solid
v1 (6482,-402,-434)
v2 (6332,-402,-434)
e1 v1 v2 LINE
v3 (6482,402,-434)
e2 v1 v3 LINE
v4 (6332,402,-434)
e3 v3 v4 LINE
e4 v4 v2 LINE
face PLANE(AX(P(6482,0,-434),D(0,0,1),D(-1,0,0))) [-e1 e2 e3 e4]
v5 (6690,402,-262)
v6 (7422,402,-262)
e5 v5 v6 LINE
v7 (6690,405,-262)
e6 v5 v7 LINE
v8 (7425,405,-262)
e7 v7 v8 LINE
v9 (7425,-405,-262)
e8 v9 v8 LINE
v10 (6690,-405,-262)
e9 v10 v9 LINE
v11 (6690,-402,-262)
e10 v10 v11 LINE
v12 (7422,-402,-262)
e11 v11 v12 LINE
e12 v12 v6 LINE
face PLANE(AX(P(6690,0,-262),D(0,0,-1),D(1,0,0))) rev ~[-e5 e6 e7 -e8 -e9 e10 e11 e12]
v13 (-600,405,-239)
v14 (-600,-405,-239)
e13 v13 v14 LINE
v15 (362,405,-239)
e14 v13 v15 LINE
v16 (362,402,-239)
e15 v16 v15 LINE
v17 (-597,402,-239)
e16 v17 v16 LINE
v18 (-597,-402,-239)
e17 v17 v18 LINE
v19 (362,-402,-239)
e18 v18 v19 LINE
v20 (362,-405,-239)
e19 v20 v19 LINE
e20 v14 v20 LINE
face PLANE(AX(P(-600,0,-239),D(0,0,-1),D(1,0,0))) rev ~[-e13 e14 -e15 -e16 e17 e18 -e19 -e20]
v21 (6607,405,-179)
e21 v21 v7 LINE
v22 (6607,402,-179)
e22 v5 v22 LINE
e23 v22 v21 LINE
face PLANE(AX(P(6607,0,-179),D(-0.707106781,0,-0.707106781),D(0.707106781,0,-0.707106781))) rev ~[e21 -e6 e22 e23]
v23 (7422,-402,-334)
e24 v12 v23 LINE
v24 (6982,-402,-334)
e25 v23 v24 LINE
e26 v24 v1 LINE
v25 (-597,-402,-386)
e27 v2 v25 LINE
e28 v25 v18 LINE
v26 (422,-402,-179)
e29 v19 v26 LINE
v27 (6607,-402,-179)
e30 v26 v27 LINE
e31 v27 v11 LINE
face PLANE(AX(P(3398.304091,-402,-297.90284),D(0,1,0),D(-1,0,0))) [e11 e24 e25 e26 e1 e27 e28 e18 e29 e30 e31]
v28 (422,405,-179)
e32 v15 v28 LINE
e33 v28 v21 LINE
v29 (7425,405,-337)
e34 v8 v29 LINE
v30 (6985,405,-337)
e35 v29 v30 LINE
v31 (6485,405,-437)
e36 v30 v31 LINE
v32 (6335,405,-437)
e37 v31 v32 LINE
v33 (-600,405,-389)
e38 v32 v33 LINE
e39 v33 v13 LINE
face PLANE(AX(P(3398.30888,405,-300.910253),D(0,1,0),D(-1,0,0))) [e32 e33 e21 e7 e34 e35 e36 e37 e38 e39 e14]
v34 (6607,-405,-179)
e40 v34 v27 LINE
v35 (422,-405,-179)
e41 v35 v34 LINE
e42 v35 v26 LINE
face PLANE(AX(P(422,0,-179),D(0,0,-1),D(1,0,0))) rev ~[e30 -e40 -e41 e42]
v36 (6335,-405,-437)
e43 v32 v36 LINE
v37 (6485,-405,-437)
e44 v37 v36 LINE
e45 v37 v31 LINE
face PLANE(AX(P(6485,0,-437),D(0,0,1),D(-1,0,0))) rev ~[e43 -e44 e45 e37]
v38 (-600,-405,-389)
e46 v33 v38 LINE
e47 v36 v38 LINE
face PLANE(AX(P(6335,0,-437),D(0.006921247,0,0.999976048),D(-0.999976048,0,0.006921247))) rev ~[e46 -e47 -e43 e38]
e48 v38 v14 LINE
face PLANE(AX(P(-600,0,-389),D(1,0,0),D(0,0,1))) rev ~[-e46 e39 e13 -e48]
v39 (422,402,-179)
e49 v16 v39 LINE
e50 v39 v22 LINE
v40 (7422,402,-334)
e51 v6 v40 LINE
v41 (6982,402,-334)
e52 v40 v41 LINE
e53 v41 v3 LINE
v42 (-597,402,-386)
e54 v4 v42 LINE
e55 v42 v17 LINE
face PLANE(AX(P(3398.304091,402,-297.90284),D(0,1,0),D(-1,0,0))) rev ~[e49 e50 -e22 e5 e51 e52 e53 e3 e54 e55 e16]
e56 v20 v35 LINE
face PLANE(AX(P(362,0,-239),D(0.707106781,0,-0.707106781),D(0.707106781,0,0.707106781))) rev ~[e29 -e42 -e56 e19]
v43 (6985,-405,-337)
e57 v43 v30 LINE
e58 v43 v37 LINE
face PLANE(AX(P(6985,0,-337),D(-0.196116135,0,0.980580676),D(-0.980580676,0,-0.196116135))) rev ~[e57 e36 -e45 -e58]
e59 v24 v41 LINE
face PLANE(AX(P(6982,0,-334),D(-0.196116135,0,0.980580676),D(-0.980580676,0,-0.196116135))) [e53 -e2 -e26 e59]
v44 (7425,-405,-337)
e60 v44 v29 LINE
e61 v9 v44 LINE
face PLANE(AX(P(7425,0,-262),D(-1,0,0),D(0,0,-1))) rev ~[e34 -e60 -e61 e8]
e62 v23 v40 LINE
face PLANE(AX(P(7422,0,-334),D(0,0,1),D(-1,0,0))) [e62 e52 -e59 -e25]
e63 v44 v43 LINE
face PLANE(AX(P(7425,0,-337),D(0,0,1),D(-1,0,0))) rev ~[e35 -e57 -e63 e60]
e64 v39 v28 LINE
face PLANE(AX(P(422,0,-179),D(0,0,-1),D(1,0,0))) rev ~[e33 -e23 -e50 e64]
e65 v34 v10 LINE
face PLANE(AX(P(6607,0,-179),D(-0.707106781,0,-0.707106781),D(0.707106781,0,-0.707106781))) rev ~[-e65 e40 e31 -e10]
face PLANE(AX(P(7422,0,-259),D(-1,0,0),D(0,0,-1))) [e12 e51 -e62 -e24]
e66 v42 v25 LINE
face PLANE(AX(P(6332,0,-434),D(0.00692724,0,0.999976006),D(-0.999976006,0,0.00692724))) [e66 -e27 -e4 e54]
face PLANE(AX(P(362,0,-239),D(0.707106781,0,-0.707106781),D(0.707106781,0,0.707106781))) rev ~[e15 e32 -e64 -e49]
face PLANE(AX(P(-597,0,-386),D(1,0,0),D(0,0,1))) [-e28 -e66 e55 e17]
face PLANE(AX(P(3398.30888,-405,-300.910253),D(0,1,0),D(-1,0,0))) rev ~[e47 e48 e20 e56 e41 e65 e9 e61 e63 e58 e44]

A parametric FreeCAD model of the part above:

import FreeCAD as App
import Part
import Sketcher

V = App.Vector
Q = App.Units.Quantity

doc = App.newDocument("Part")
body = doc.addObject("PartDesign::Body", "Body")

# Sketch on XZ plane
sketch1 = body.newObject("Sketcher::SketchObject", "Sketch")
sketch1.AttachmentSupport = (doc.getObject("XZ_Plane"), [""])
sketch1.MapMode = "FlatFace"
sketch1.addGeometry([
    Part.LineSegment(V(362, -239, 0), V(-597, -239, 0)),  # 0
    Part.LineSegment(V(-597, -239, 0), V(-597, -389, 0)),  # 1
    Part.LineSegment(V(-597, -389, 0), V(6332, -437, 0)),  # 2
    Part.LineSegment(V(6332, -437, 0), V(6482, -437, 0)),  # 3
    Part.LineSegment(V(6482, -437, 0), V(6982, -337, 0)),  # 4
    Part.LineSegment(V(6982, -337, 0), V(7422, -337, 0)),  # 5
    Part.LineSegment(V(7422, -337, 0), V(7422, -262, 0)),  # 6
    Part.LineSegment(V(7422, -262, 0), V(6687, -262, 0)),  # 7
    Part.LineSegment(V(6687, -262, 0), V(6604, -179, 0)),  # 8
    Part.LineSegment(V(6604, -179, 0), V(422, -179, 0)),  # 9
    Part.LineSegment(V(422, -179, 0), V(362, -239, 0)),  # 10
], False)
sketch1.addConstraint([
    Sketcher.Constraint("Coincident", 0, 2, 1, 1),
    Sketcher.Constraint("Coincident", 1, 2, 2, 1),
    Sketcher.Constraint("Coincident", 2, 2, 3, 1),
    Sketcher.Constraint("Coincident", 3, 2, 4, 1),
    Sketcher.Constraint("Coincident", 4, 2, 5, 1),
    Sketcher.Constraint("Coincident", 5, 2, 6, 1),
    Sketcher.Constraint("Coincident", 6, 2, 7, 1),
    Sketcher.Constraint("Coincident", 7, 2, 8, 1),
    Sketcher.Constraint("Coincident", 8, 2, 9, 1),
    Sketcher.Constraint("Coincident", 9, 2, 10, 1),
    Sketcher.Constraint("Coincident", 10, 2, 0, 1),
    Sketcher.Constraint("Horizontal", 0),
    Sketcher.Constraint("Vertical", 1),
    Sketcher.Constraint("Horizontal", 3),
    Sketcher.Constraint("Horizontal", 5),
    Sketcher.Constraint("Vertical", 6),
    Sketcher.Constraint("Horizontal", 7),
    Sketcher.Constraint("Horizontal", 9),
    Sketcher.Constraint("Perpendicular", 8, 10),
    Sketcher.Constraint("Equal", 3, 1),
    Sketcher.Constraint("DistanceX", 0, 2, 0, 1, 959.0),
    Sketcher.Constraint("DistanceX", 3, 1, 3, 2, 150.0),
    Sketcher.Constraint("DistanceX", 5, 1, 5, 2, 440.0),
    Sketcher.Constraint("DistanceX", 7, 2, 7, 1, 735.0),
    Sketcher.Constraint("DistanceX", 9, 2, 9, 1, 6182.0),
    Sketcher.Constraint("DistanceY", 6, 1, 6, 2, 75.0),
    Sketcher.Constraint("Angle", 8, Q("135 deg")),
    Sketcher.Constraint("DistanceX", 0, 2, -1, 1, 597.0),
    Sketcher.Constraint("DistanceY", 0, 2, -1, 1, 239.0),
    Sketcher.Constraint("DistanceX", -1, 1, 2, 2, 6332.0),
    Sketcher.Constraint("DistanceY", 2, 2, -1, 1, 437.0),
    Sketcher.Constraint("DistanceX", -1, 1, 4, 2, 6982.0),
    Sketcher.Constraint("DistanceY", 4, 2, -1, 1, 337.0),
])
pad1 = body.newObject("PartDesign::Pad", "Pad")
pad1.Profile = sketch1
pad1.Length = 804
pad1.Midplane = True
body2 = doc.addObject("PartDesign::Body", "Body001")
doc.recompute()

body.Placement = App.Placement(V(0, 0, 3), App.Rotation(V(0, 0, 1), 0))
boolean = body2.newObject("PartDesign::Boolean", "Boolean")
boolean.Type = "Fuse"
boolean.addObjects([body])
body3 = doc.addObject("PartDesign::Body", "Body002")

# Sketch on XZ plane
sketch2 = body3.newObject("Sketcher::SketchObject", "Sketch001")
sketch2.AttachmentSupport = (doc.getObject("XZ_Plane002"), [""])
sketch2.MapMode = "FlatFace"
sketch2.addGeometry([
    Part.LineSegment(V(362, -239, 0), V(-600, -239, 0)),  # 0
    Part.LineSegment(V(-600, -239, 0), V(-600, -389, 0)),  # 1
    Part.LineSegment(V(-600, -389, 0), V(6335, -437, 0)),  # 2
    Part.LineSegment(V(6335, -437, 0), V(6485, -437, 0)),  # 3
    Part.LineSegment(V(6485, -437, 0), V(6985, -337, 0)),  # 4
    Part.LineSegment(V(6985, -337, 0), V(7425, -337, 0)),  # 5
    Part.LineSegment(V(7425, -337, 0), V(7425, -262, 0)),  # 6
    Part.LineSegment(V(7425, -262, 0), V(6690, -262, 0)),  # 7
    Part.LineSegment(V(6690, -262, 0), V(6607, -179, 0)),  # 8
    Part.LineSegment(V(6607, -179, 0), V(422, -179, 0)),  # 9
    Part.LineSegment(V(422, -179, 0), V(362, -239, 0)),  # 10
], False)
sketch2.addConstraint([
    Sketcher.Constraint("Coincident", 0, 2, 1, 1),
    Sketcher.Constraint("Coincident", 1, 2, 2, 1),
    Sketcher.Constraint("Coincident", 2, 2, 3, 1),
    Sketcher.Constraint("Coincident", 3, 2, 4, 1),
    Sketcher.Constraint("Coincident", 4, 2, 5, 1),
    Sketcher.Constraint("Coincident", 5, 2, 6, 1),
    Sketcher.Constraint("Coincident", 6, 2, 7, 1),
    Sketcher.Constraint("Coincident", 7, 2, 8, 1),
    Sketcher.Constraint("Coincident", 8, 2, 9, 1),
    Sketcher.Constraint("Coincident", 9, 2, 10, 1),
    Sketcher.Constraint("Coincident", 10, 2, 0, 1),
    Sketcher.Constraint("Horizontal", 0),
    Sketcher.Constraint("Vertical", 1),
    Sketcher.Constraint("Horizontal", 3),
    Sketcher.Constraint("Horizontal", 5),
    Sketcher.Constraint("Vertical", 6),
    Sketcher.Constraint("Horizontal", 7),
    Sketcher.Constraint("Horizontal", 9),
    Sketcher.Constraint("Perpendicular", 8, 10),
    Sketcher.Constraint("Equal", 3, 1),
    Sketcher.Constraint("DistanceX", 0, 2, 0, 1, 962.0),
    Sketcher.Constraint("DistanceX", 3, 1, 3, 2, 150.0),
    Sketcher.Constraint("DistanceX", 5, 1, 5, 2, 440.0),
    Sketcher.Constraint("DistanceX", 7, 2, 7, 1, 735.0),
    Sketcher.Constraint("DistanceX", 9, 2, 9, 1, 6185.0),
    Sketcher.Constraint("DistanceY", 6, 1, 6, 2, 75.0),
    Sketcher.Constraint("Angle", 8, Q("135 deg")),
    Sketcher.Constraint("DistanceX", 0, 2, -1, 1, 600.0),
    Sketcher.Constraint("DistanceY", 0, 2, -1, 1, 239.0),
    Sketcher.Constraint("DistanceX", -1, 1, 2, 2, 6335.0),
    Sketcher.Constraint("DistanceY", 2, 2, -1, 1, 437.0),
    Sketcher.Constraint("DistanceX", -1, 1, 4, 2, 6985.0),
    Sketcher.Constraint("DistanceY", 4, 2, -1, 1, 337.0),
])
pad2 = body3.newObject("PartDesign::Pad", "Pad001")
pad2.Profile = sketch2
pad2.Length = 810
pad2.Midplane = True
doc.recompute()

boolean2 = body3.newObject("PartDesign::Boolean", "Boolean001")
boolean2.Type = "Cut"
boolean2.addObjects([body2])

doc.recompute()
